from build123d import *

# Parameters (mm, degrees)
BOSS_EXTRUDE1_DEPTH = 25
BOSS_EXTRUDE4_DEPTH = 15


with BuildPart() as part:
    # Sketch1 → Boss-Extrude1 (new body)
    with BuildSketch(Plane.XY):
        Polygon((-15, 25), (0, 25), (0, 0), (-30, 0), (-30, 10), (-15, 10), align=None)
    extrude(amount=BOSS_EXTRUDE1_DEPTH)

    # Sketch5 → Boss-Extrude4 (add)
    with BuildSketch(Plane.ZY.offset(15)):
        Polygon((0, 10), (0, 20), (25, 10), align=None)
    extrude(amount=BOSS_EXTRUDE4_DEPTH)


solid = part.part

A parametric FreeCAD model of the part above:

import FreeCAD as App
import Part
import Sketcher

V = App.Vector


def add_polygon(sketch, points):
    """Adds a closed chain of lines whose ends are joined by coincident constraints."""
    first, n = sketch.GeometryCount, len(points)
    for a, b in zip(points, points[1:] + points[:1]):
        sketch.addGeometry(Part.LineSegment(App.Vector(*a, 0), App.Vector(*b, 0)), False)
    for i in range(n):
        sketch.addConstraint(Sketcher.Constraint("Coincident", first + i, 2, first + (i + 1) % n, 1))

doc = App.newDocument("Part")
body = doc.addObject("PartDesign::Body", "Body")

# Sketch on XY plane
sketch1 = body.newObject("Sketcher::SketchObject", "Sketch")
sketch1.AttachmentSupport = (doc.getObject("XY_Plane"), [""])
sketch1.MapMode = "FlatFace"
add_polygon(sketch1, [(0, 25), (-15, 25), (-15, 10), (-30, 10), (-30, 0), (0, 0)])  # lines 0-5
sketch1.addConstraint([
    Sketcher.Constraint("Horizontal", 0),
    Sketcher.Constraint("Vertical", 1),
    Sketcher.Constraint("Horizontal", 2),
    Sketcher.Constraint("Vertical", 3),
    Sketcher.Constraint("Horizontal", 4),
    Sketcher.Constraint("Vertical", 5),
    Sketcher.Constraint("Coincident", 4, 2, -1, 1),
    Sketcher.Constraint("Equal", 0, 2),
    Sketcher.Constraint("Equal", 2, 1),
    Sketcher.Constraint("DistanceX", 0, 2, 0, 1, 15.0),
    Sketcher.Constraint("DistanceY", 3, 2, 3, 1, 10.0),
])
pad1 = body.newObject("PartDesign::Pad", "Pad")
pad1.Profile = sketch1
pad1.Length = 25

# Sketch on YZ plane
sketch2 = body.newObject("Sketcher::SketchObject", "Sketch001")
sketch2.AttachmentSupport = (doc.getObject("YZ_Plane"), [""])
sketch2.MapMode = "FlatFace"
sketch2.AttachmentOffset = App.Placement(V(0, 0, -15), App.Rotation())
add_polygon(sketch2, [(20, 0), (10, 0), (10, 25)])  # lines 0-2
sketch2.addConstraint([
    Sketcher.Constraint("Horizontal", 0),
    Sketcher.Constraint("Vertical", 1),
    Sketcher.Constraint("PointOnObject", 0, 2, -1),
    Sketcher.Constraint("DistanceX", 0, 2, 0, 1, 10.0),
    Sketcher.Constraint("DistanceY", 1, 1, 1, 2, 25.0),
    Sketcher.Constraint("DistanceX", -1, 1, 0, 2, 10.0),
])
pad2 = body.newObject("PartDesign::Pad", "Pad001")
pad2.Profile = sketch2
pad2.Length = 15
pad2.Reversed = True

doc.recompute()
